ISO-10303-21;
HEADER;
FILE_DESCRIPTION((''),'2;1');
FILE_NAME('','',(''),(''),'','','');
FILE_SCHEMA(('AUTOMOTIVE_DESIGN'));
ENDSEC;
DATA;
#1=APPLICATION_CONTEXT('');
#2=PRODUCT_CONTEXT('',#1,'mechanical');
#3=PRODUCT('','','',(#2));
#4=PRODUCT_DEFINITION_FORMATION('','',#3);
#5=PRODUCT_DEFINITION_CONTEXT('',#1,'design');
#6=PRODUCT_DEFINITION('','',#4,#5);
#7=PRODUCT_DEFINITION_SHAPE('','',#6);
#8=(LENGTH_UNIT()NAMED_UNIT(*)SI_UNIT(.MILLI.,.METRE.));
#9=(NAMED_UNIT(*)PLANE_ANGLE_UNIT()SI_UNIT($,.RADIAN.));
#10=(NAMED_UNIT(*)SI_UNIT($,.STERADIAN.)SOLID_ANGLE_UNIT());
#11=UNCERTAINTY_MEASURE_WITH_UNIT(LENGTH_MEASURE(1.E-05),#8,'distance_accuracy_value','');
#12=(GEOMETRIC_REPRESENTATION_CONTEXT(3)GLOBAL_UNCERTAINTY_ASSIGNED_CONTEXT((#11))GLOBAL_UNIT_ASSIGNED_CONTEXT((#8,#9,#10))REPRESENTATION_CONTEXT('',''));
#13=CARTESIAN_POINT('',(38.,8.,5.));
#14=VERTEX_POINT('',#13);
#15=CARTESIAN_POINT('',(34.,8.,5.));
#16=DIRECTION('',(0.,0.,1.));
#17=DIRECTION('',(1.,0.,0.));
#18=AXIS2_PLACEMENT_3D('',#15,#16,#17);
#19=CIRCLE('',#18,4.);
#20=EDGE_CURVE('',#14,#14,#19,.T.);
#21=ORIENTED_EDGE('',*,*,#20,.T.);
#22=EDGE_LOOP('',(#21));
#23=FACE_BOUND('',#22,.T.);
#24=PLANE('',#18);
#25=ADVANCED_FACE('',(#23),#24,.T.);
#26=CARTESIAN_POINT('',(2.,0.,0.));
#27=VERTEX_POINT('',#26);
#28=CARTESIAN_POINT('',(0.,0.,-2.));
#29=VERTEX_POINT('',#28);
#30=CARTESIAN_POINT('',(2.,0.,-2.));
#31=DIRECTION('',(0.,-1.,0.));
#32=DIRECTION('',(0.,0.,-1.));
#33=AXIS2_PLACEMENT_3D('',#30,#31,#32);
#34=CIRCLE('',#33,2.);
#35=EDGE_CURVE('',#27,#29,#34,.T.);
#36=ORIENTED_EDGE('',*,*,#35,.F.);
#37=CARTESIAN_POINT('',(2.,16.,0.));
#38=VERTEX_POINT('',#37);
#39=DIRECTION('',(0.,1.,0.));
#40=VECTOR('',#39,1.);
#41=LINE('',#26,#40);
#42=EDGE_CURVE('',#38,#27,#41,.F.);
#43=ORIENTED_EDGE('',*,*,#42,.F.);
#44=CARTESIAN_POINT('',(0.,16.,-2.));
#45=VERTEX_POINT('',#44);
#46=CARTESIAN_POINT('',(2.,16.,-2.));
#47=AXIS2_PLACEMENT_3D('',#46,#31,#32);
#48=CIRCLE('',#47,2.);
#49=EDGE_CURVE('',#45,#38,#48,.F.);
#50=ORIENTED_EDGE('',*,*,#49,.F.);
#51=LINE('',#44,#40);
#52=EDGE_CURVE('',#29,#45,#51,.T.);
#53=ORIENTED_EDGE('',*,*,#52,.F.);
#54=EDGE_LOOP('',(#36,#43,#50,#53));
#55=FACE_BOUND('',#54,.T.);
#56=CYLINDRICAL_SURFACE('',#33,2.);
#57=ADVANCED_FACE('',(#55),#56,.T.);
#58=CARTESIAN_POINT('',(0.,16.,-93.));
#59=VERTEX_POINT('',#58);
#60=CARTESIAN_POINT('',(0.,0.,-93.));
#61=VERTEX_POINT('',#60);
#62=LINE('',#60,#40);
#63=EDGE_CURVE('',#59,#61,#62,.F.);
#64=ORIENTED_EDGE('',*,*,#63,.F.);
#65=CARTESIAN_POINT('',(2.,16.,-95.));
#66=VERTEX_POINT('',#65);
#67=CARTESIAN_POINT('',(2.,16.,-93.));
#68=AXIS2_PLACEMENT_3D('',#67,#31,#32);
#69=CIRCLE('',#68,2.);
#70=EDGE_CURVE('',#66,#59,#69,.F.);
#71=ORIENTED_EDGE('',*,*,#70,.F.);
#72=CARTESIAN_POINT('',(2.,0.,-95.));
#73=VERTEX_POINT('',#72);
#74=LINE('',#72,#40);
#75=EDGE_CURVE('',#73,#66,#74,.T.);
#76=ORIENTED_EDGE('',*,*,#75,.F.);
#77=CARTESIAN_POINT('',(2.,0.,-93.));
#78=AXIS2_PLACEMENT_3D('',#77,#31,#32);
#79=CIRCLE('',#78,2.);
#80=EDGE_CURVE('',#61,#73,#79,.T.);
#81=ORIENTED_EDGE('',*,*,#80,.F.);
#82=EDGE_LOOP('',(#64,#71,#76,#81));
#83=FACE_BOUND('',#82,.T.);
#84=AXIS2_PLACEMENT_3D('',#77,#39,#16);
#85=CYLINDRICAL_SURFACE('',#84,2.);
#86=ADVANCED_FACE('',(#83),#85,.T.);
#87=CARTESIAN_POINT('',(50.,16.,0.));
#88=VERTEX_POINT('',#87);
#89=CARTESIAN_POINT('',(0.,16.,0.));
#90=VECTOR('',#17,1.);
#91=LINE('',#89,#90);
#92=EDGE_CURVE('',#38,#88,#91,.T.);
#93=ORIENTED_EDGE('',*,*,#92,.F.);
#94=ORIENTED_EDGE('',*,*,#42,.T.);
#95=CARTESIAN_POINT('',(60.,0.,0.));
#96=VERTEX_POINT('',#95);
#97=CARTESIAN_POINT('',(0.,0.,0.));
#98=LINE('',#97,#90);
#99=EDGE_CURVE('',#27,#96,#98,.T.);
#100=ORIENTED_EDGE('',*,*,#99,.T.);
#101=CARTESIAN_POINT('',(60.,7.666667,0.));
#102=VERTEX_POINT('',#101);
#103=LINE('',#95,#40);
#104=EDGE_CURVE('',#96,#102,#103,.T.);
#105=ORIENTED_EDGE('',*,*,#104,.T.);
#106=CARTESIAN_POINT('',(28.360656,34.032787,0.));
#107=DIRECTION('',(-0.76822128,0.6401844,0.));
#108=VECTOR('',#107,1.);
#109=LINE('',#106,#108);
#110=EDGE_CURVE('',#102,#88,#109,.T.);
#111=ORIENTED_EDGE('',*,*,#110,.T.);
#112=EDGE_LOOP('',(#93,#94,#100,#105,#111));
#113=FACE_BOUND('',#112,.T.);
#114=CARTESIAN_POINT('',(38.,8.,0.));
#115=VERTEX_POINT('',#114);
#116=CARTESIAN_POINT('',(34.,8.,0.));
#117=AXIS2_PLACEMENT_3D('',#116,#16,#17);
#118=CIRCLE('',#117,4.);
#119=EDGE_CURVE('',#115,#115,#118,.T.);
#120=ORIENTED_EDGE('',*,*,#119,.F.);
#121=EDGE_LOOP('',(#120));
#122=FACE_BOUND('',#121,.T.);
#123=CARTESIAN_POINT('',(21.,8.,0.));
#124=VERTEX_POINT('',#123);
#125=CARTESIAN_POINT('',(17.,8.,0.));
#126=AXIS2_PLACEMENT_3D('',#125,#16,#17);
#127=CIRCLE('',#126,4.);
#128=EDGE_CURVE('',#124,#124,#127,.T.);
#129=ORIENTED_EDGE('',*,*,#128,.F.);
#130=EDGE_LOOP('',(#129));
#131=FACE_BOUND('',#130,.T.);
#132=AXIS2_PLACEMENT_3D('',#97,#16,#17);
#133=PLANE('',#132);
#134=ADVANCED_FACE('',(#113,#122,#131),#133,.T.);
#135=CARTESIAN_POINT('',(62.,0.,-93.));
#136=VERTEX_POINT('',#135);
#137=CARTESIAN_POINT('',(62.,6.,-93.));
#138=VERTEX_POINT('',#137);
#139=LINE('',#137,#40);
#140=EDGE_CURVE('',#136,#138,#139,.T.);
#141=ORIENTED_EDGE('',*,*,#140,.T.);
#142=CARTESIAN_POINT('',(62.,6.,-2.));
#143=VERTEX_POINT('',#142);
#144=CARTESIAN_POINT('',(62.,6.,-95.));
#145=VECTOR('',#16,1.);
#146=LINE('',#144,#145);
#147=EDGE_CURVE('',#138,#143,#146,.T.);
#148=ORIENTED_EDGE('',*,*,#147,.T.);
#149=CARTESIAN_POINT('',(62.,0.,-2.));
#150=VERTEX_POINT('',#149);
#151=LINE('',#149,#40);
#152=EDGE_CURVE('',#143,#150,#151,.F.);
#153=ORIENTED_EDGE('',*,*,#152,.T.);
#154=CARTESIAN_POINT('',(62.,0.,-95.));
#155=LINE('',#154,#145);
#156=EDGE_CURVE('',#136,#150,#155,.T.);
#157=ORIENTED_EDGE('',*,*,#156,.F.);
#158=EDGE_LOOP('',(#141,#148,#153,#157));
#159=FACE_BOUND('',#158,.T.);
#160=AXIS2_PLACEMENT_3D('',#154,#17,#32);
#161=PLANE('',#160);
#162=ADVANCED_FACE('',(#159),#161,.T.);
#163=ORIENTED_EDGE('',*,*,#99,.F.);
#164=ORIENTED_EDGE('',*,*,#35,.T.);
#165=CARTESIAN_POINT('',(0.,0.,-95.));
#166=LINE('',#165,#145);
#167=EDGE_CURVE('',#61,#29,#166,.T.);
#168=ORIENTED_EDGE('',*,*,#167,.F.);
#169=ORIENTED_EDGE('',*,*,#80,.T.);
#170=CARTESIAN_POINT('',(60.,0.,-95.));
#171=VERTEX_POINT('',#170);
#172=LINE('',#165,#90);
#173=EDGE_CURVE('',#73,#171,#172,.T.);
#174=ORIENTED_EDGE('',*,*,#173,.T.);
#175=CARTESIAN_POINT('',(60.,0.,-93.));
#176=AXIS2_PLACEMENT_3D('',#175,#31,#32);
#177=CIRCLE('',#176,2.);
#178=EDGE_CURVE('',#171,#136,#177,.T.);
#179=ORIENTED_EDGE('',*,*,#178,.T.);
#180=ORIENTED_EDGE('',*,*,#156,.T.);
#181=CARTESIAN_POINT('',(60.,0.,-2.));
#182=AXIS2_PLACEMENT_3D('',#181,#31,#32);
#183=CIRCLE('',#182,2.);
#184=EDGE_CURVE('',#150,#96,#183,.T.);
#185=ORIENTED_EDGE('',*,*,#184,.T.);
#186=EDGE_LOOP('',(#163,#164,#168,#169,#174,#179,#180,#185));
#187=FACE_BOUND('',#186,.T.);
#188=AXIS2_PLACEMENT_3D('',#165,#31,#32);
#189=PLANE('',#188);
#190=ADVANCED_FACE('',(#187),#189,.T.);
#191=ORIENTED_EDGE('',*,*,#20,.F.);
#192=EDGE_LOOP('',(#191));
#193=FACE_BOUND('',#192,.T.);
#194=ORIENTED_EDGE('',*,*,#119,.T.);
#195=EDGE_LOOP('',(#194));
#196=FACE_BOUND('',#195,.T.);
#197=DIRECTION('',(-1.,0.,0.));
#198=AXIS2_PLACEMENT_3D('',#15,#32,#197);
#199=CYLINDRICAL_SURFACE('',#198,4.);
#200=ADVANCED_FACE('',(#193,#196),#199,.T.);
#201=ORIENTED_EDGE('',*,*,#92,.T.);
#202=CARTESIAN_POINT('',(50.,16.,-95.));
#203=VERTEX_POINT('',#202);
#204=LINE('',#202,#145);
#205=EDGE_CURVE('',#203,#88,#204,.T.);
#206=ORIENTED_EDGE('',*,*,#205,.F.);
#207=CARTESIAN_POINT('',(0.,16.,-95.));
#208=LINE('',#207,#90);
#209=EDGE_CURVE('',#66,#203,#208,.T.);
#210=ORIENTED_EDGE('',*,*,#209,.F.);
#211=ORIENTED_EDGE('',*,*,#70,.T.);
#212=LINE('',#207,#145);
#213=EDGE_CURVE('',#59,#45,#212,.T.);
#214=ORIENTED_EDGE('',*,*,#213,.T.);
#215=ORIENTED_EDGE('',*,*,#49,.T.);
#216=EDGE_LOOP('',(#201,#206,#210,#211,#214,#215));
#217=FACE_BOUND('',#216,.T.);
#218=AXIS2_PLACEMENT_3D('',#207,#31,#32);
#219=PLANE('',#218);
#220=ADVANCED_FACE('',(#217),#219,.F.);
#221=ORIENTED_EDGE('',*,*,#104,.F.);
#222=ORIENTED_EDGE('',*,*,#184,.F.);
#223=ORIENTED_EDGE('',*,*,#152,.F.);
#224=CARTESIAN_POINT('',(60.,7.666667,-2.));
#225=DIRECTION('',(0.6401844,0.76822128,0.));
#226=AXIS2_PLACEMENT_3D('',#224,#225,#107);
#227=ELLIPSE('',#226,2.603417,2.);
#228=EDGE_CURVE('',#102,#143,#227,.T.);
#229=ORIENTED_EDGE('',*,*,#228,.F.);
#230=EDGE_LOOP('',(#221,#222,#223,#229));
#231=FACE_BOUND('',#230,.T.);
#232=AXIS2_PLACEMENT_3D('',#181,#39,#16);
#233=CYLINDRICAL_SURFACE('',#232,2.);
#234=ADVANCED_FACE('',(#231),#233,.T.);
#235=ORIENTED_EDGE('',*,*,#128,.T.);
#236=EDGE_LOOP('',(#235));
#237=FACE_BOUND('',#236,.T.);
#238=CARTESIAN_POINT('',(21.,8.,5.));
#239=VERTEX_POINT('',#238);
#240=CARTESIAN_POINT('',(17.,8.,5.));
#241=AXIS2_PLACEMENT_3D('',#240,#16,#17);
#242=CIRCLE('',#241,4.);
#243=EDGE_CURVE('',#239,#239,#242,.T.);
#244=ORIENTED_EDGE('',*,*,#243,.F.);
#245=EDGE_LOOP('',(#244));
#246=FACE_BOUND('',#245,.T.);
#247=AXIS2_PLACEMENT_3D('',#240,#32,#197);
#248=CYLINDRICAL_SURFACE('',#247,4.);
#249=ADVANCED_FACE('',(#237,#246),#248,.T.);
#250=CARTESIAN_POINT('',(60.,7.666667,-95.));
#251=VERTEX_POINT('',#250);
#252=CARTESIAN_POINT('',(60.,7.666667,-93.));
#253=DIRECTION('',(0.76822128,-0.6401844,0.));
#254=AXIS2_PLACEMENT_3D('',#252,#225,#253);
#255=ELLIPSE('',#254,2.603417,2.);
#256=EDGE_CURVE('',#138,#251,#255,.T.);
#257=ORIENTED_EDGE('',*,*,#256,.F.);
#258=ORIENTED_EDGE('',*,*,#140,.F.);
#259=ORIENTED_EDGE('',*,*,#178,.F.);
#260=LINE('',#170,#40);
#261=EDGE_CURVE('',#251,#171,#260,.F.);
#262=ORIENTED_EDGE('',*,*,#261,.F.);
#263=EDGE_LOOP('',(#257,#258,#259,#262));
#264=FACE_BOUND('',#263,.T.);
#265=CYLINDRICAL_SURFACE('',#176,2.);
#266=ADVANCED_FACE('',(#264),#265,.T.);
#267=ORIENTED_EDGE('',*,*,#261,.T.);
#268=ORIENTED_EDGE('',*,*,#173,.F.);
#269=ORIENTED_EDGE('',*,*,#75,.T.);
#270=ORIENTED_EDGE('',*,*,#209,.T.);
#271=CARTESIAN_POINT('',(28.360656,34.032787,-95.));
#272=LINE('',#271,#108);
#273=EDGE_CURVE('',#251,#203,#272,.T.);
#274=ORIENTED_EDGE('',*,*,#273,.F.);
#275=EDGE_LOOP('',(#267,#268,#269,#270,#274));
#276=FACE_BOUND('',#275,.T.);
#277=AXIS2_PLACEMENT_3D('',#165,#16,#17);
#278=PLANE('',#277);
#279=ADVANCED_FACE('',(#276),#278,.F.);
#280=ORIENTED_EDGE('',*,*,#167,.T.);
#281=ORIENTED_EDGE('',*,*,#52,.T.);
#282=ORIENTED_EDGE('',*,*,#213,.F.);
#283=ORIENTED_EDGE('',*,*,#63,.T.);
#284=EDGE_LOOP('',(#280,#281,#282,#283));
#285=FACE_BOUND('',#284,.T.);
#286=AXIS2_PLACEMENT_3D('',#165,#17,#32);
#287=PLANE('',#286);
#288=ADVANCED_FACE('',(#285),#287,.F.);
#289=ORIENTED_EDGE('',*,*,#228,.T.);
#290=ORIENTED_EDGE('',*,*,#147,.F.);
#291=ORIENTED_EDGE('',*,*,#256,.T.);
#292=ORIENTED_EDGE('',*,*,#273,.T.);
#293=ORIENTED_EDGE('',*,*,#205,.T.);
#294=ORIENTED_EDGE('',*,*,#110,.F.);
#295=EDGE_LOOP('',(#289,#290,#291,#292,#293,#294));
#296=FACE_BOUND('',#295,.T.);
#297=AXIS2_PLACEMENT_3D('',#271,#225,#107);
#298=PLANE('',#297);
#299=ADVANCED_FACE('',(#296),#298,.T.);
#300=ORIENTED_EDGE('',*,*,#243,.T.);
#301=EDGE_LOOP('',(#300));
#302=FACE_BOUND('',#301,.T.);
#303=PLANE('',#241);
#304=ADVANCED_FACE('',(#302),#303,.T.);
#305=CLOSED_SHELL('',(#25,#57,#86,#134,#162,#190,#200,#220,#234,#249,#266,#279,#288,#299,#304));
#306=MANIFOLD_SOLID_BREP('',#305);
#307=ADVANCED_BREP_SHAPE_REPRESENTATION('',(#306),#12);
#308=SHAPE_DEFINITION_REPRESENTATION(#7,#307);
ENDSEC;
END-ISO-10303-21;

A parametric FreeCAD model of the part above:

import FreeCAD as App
import Part
import Sketcher
Q = App.Units.Quantity


def edges_at(feature, points):
    """Names of the edges that pass closest to the given points."""
    edges = feature.Shape.Edges
    near = lambda p: min(range(len(edges)), key=lambda i: edges[i].distToShape(Part.Vertex(*p))[0])
    return sorted({f"Edge{near(p) + 1}" for p in points})


def add_polygon(sketch, points):
    """Adds a closed chain of lines whose ends are joined by coincident constraints."""
    first, n = sketch.GeometryCount, len(points)
    for a, b in zip(points, points[1:] + points[:1]):
        sketch.addGeometry(Part.LineSegment(App.Vector(*a, 0), App.Vector(*b, 0)), False)
    for i in range(n):
        sketch.addConstraint(Sketcher.Constraint("Coincident", first + i, 2, first + (i + 1) % n, 1))

doc = App.newDocument("Part")
body = doc.addObject("PartDesign::Body", "Body")

# Sketch on XY plane
sketch1 = doc.addObject("Sketcher::SketchObject", "Sketch")
body.addObject(sketch1)
sketch1.AttachmentSupport = (doc.XY_Plane, [""])
sketch1.MapMode = "FlatFace"
add_polygon(sketch1, [(0, 16), (0, 0), (62, 0), (62, 6), (50, 16)])  # lines 0-4
sketch1.addConstraint([
    Sketcher.Constraint("Vertical", 0),
    Sketcher.Constraint("Horizontal", 1),
    Sketcher.Constraint("Vertical", 2),
    Sketcher.Constraint("Horizontal", 4),
    Sketcher.Constraint("Coincident", 0, 2, -1, 1),
    Sketcher.Constraint("DistanceX", 1, 1, 1, 2, Q("62 mm")),
    Sketcher.Constraint("DistanceX", 4, 2, 4, 1, Q("50 mm")),
    Sketcher.Constraint("DistanceY", 0, 2, 0, 1, Q("16 mm")),
    Sketcher.Constraint("DistanceY", 2, 1, 2, 2, Q("6 mm")),
])
pad1 = doc.addObject("PartDesign::Pad", "Pad")
body.addObject(pad1)
pad1.Profile = sketch1
pad1.Length = 95
pad1.Reversed = True
doc.recompute()

fillet = doc.addObject("PartDesign::Fillet", "Fillet")
body.addObject(fillet)
fillet.Base = (pad1, edges_at(pad1, [
    (62, 3, -95),
    (0, 8, -95),
    (0, 8, 0),
    (62, 3, 0),
]))
fillet.Radius = 2

# Sketch on XY plane
sketch2 = doc.addObject("Sketcher::SketchObject", "Sketch001")
body.addObject(sketch2)
sketch2.AttachmentSupport = (doc.XY_Plane, [""])
sketch2.MapMode = "FlatFace"
sketch2.addGeometry([
    Part.Circle(App.Vector(17, 8, 0), App.Vector(0, 0, 1), 4),
    Part.Circle(App.Vector(34, 8, 0), App.Vector(0, 0, 1), 4),
], False)
sketch2.addConstraint([
    Sketcher.Constraint("Equal", 0, 1),
    Sketcher.Constraint("Horizontal", 0, 3, 1, 3),
    Sketcher.Constraint("Diameter", 0, Q("8 mm")),
    Sketcher.Constraint("DistanceX", -1, 1, 0, 3, Q("17 mm")),
    Sketcher.Constraint("DistanceY", -1, 1, 0, 3, Q("8 mm")),
    Sketcher.Constraint("DistanceX", -1, 1, 1, 3, Q("34 mm")),
])
pad2 = doc.addObject("PartDesign::Pad", "Pad001")
body.addObject(pad2)
pad2.Profile = sketch2
pad2.Length = 5

doc.recompute()
